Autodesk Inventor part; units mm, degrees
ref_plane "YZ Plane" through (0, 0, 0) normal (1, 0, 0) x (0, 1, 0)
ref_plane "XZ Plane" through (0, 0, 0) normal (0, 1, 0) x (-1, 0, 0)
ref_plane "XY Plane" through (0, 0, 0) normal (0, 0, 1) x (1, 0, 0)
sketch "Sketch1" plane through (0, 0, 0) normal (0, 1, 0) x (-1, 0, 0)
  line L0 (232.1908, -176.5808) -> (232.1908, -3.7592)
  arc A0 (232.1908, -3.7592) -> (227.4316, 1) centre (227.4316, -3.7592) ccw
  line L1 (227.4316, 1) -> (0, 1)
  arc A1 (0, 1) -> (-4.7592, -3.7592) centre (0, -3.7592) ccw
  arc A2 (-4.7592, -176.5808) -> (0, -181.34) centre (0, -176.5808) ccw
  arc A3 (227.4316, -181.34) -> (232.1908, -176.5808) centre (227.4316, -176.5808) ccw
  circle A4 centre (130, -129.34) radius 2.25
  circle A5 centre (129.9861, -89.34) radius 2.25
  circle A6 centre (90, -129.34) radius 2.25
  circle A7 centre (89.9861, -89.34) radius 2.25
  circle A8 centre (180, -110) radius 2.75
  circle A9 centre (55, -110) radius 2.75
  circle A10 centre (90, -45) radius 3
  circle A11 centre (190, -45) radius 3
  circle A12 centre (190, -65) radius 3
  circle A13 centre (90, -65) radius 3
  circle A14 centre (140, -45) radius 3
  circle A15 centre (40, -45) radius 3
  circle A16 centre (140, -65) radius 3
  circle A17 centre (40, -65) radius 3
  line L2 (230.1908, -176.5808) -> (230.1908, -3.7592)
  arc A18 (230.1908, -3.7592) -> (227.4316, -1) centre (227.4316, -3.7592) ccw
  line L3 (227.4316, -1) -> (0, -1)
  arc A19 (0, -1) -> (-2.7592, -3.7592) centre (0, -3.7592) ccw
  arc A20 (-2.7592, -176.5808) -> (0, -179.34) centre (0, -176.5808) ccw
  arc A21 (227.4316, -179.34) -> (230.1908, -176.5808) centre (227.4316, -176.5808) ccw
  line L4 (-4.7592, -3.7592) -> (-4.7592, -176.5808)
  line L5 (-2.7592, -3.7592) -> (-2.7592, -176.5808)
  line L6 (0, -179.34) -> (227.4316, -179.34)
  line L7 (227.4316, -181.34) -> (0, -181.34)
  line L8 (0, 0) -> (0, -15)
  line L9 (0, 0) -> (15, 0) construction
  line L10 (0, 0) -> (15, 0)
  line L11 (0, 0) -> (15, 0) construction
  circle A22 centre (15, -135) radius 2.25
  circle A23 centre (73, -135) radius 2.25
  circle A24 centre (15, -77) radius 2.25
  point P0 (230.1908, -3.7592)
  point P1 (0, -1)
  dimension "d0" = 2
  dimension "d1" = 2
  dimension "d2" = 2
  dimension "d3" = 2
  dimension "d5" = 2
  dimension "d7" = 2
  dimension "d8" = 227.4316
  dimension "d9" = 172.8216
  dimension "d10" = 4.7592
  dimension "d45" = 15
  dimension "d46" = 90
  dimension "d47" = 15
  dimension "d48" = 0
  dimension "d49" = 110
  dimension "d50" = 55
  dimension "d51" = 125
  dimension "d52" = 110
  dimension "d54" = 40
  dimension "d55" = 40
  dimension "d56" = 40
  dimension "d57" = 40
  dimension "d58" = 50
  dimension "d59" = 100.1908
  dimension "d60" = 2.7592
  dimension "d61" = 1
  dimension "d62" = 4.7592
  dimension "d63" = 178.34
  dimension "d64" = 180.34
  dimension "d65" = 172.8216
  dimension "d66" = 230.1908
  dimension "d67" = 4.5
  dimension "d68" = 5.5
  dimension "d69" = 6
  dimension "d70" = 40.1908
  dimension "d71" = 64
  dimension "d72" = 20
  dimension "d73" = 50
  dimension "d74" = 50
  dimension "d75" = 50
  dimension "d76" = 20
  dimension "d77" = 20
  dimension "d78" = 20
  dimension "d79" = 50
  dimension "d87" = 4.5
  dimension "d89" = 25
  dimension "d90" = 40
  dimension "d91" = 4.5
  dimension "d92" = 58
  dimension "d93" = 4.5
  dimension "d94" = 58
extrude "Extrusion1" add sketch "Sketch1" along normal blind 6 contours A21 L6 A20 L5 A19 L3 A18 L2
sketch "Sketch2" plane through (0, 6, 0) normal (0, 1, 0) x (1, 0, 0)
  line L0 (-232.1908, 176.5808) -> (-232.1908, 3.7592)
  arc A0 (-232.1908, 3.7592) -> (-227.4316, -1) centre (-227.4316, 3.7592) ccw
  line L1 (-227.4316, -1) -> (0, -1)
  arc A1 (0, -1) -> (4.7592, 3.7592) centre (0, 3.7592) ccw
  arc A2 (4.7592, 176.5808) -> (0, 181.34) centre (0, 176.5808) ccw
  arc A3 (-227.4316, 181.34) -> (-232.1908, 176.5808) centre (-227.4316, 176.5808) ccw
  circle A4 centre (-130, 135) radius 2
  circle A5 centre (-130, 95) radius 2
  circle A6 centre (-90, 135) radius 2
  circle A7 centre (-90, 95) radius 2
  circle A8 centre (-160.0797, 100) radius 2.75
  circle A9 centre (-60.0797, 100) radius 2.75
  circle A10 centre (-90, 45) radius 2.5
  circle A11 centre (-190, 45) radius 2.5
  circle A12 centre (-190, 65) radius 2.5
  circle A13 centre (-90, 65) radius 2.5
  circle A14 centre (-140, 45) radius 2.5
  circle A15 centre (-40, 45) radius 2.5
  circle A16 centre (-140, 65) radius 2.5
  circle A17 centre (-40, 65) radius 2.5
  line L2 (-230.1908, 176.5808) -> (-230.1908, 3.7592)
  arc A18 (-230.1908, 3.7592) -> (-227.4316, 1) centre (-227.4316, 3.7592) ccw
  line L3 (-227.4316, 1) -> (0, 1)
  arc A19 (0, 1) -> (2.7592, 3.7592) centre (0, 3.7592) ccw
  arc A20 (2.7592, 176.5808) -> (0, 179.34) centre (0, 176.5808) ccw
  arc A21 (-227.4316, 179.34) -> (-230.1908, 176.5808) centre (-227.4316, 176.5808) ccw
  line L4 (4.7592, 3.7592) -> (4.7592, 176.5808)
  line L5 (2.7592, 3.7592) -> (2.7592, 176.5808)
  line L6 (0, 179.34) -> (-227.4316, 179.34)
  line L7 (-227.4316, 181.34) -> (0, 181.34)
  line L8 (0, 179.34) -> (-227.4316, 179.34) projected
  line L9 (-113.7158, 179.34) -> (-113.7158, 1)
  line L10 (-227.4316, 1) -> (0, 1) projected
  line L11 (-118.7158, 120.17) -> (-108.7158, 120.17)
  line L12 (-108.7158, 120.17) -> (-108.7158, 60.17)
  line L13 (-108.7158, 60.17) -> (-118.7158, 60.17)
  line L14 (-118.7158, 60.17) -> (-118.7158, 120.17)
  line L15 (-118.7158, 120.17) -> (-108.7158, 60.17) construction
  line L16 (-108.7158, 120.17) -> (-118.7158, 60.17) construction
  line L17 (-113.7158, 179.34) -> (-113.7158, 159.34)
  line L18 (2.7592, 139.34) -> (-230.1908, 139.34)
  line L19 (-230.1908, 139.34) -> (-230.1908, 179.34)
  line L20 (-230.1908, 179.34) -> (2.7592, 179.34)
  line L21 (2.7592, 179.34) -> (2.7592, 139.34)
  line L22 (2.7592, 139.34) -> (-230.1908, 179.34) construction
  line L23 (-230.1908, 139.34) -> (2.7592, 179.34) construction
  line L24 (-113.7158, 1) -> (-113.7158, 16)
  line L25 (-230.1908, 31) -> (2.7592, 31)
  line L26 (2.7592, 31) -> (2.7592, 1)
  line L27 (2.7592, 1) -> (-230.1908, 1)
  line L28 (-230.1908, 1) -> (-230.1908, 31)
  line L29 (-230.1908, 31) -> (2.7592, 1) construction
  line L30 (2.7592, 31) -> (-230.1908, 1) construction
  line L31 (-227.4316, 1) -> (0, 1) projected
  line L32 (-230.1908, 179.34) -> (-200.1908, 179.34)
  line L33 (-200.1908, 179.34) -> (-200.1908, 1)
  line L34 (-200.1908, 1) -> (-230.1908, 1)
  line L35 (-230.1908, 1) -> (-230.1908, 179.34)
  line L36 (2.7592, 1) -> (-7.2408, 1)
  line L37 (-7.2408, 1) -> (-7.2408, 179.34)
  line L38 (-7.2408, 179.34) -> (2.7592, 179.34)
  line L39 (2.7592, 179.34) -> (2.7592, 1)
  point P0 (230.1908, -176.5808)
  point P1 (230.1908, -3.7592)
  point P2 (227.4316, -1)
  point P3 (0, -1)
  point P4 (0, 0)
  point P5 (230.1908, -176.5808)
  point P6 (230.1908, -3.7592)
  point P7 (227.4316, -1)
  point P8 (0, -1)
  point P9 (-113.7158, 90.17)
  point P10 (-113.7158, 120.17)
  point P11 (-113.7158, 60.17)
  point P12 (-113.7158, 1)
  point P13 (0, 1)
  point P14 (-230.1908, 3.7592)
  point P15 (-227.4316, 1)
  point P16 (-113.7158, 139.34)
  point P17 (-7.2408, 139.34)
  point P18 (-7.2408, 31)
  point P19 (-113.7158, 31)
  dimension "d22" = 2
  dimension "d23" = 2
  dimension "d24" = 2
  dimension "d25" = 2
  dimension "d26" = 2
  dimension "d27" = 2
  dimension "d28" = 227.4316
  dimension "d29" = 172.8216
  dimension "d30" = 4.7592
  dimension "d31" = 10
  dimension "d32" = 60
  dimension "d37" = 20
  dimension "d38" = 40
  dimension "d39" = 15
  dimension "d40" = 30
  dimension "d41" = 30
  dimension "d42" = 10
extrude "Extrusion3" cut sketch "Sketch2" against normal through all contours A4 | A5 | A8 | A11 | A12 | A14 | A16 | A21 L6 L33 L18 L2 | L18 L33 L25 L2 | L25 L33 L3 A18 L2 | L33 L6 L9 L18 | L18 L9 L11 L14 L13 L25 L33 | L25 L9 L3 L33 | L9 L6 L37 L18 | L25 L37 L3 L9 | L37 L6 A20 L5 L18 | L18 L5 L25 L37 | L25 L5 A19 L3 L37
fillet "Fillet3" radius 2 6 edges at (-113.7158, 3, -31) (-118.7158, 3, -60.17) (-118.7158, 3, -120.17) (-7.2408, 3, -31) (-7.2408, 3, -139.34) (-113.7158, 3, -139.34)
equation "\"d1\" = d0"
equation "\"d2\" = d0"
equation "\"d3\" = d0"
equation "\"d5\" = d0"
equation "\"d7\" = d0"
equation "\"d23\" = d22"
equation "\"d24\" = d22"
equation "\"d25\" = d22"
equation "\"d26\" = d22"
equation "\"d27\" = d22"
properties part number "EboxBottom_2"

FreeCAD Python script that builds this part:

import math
import FreeCAD as App
import Part
import Sketcher
from FreeCAD import Vector
Q = App.Units.Quantity


def edges_at(feature, points):
    """Names of the edges that pass closest to the given points."""
    edges = feature.Shape.Edges
    near = lambda p: min(range(len(edges)), key=lambda i: edges[i].distToShape(Part.Vertex(*p))[0])
    return sorted({f"Edge{near(p) + 1}" for p in points})


def add_polygon(sketch, points):
    """Adds a closed chain of lines whose ends are joined by coincident constraints."""
    first, n = sketch.GeometryCount, len(points)
    for a, b in zip(points, points[1:] + points[:1]):
        sketch.addGeometry(Part.LineSegment(App.Vector(*a, 0), App.Vector(*b, 0)), False)
    for i in range(n):
        sketch.addConstraint(Sketcher.Constraint("Coincident", first + i, 2, first + (i + 1) % n, 1))

doc = App.newDocument("Part")
body = doc.addObject("PartDesign::Body", "Body")

# Sketch on XZ plane
sketch1 = doc.addObject("Sketcher::SketchObject", "Sketch")
body.addObject(sketch1)
sketch1.AttachmentSupport = (doc.XZ_Plane, [""])
sketch1.MapMode = "FlatFace"
sketch1.addGeometry([
    Part.ArcOfCircle(Part.Circle(Vector(-227.4316, -176.5808, 0), Vector(0, 0, 1), 2.7592), math.radians(180), math.radians(270)),  # 0
    Part.LineSegment(Vector(-230.1908, -176.5808, 0), Vector(-230.1908, -3.7592, 0)),  # 1
    Part.ArcOfCircle(Part.Circle(Vector(-227.4316, -3.7592, 0), Vector(0, 0, 1), 2.7592), math.radians(90), math.radians(180)),  # 2
    Part.LineSegment(Vector(-227.4316, -1, 0), Vector(0, -1, 0)),  # 3
    Part.ArcOfCircle(Part.Circle(Vector(0, -3.7592, 0), Vector(0, 0, 1), 2.7592), math.radians(0), math.radians(90)),  # 4
    Part.LineSegment(Vector(2.7592, -3.7592, 0), Vector(2.7592, -176.5808, 0)),  # 5
    Part.ArcOfCircle(Part.Circle(Vector(0, -176.5808, 0), Vector(0, 0, 1), 2.7592), math.radians(-90), math.radians(0)),  # 6
    Part.LineSegment(Vector(0, -179.34, 0), Vector(-227.4316, -179.34, 0)),  # 7
    Part.Circle(Vector(-15, -135, 0), Vector(0, 0, 1), 2.25),  # 8
    Part.Circle(Vector(-73, -135, 0), Vector(0, 0, 1), 2.25),  # 9
    Part.Circle(Vector(-90, -129.34, 0), Vector(0, 0, 1), 2.25),  # 10
    Part.Circle(Vector(-55, -110, 0), Vector(0, 0, 1), 2.75),  # 11
    Part.Circle(Vector(-130, -129.34, 0), Vector(0, 0, 1), 2.25),  # 12
    Part.Circle(Vector(-180, -110, 0), Vector(0, 0, 1), 2.75),  # 13
    Part.Circle(Vector(-15, -77, 0), Vector(0, 0, 1), 2.25),  # 14
    Part.Circle(Vector(-40, -65, 0), Vector(0, 0, 1), 3),  # 15
    Part.Circle(Vector(-40, -45, 0), Vector(0, 0, 1), 3),  # 16
    Part.Circle(Vector(-89.9861, -89.34, 0), Vector(0, 0, 1), 2.25),  # 17
    Part.Circle(Vector(-90, -65, 0), Vector(0, 0, 1), 3),  # 18
    Part.Circle(Vector(-90, -45, 0), Vector(0, 0, 1), 3),  # 19
    Part.Circle(Vector(-129.9861, -89.34, 0), Vector(0, 0, 1), 2.25),  # 20
    Part.Circle(Vector(-140, -65, 0), Vector(0, 0, 1), 3),  # 21
    Part.Circle(Vector(-140, -45, 0), Vector(0, 0, 1), 3),  # 22
    Part.Circle(Vector(-190, -65, 0), Vector(0, 0, 1), 3),  # 23
    Part.Circle(Vector(-190, -45, 0), Vector(0, 0, 1), 3),  # 24
], False)
sketch1.addConstraint([
    Sketcher.Constraint("Tangent", 0, 1, 1, 1),
    Sketcher.Constraint("Tangent", 1, 2, 2, 2),
    Sketcher.Constraint("Tangent", 2, 1, 3, 1),
    Sketcher.Constraint("Tangent", 3, 2, 4, 2),
    Sketcher.Constraint("Tangent", 4, 1, 5, 1),
    Sketcher.Constraint("Tangent", 5, 2, 6, 2),
    Sketcher.Constraint("Tangent", 6, 1, 7, 1),
    Sketcher.Constraint("Tangent", 7, 2, 0, 2),
    Sketcher.Constraint("Vertical", 1),
    Sketcher.Constraint("Horizontal", 3),
    Sketcher.Constraint("Vertical", 5),
    Sketcher.Constraint("Horizontal", 7),
    Sketcher.Constraint("Equal", 0, 2),
    Sketcher.Constraint("Equal", 2, 4),
    Sketcher.Constraint("Equal", 4, 6),
    Sketcher.Constraint("Equal", 8, 9),
    Sketcher.Constraint("Equal", 9, 10),
    Sketcher.Constraint("Equal", 10, 12),
    Sketcher.Constraint("Equal", 11, 13),
    Sketcher.Constraint("Equal", 12, 14),
    Sketcher.Constraint("Equal", 15, 16),
    Sketcher.Constraint("Equal", 14, 17),
    Sketcher.Constraint("Equal", 16, 18),
    Sketcher.Constraint("Equal", 18, 19),
    Sketcher.Constraint("Equal", 17, 20),
    Sketcher.Constraint("Equal", 19, 21),
    Sketcher.Constraint("Equal", 21, 22),
    Sketcher.Constraint("Equal", 22, 23),
    Sketcher.Constraint("Equal", 23, 24),
    Sketcher.Constraint("PointOnObject", 4, 3, -2),
    Sketcher.Constraint("Horizontal", 8, 3, 9, 3),
    Sketcher.Constraint("Horizontal", 10, 3, 12, 3),
    Sketcher.Constraint("Horizontal", 11, 3, 13, 3),
    Sketcher.Constraint("Horizontal", 15, 3, 18, 3),
    Sketcher.Constraint("Horizontal", 16, 3, 19, 3),
    Sketcher.Constraint("Horizontal", 17, 3, 20, 3),
    Sketcher.Constraint("Horizontal", 18, 3, 21, 3),
    Sketcher.Constraint("Horizontal", 19, 3, 22, 3),
    Sketcher.Constraint("Horizontal", 21, 3, 23, 3),
    Sketcher.Constraint("Horizontal", 22, 3, 24, 3),
    Sketcher.Constraint("Vertical", 8, 3, 14, 3),
    Sketcher.Constraint("Vertical", 15, 3, 16, 3),
    Sketcher.Constraint("Vertical", 10, 3, 18, 3),
    Sketcher.Constraint("Vertical", 18, 3, 19, 3),
    Sketcher.Constraint("Vertical", 21, 3, 22, 3),
    Sketcher.Constraint("Vertical", 23, 3, 24, 3),
    Sketcher.Constraint("Diameter", 15, Q("6 mm")),
    Sketcher.Constraint("Diameter", 8, Q("4.5 mm")),
    Sketcher.Constraint("Diameter", 11, Q("5.5 mm")),
    Sketcher.Constraint("DistanceX", 8, 3, -1, 1, Q("15 mm")),
    Sketcher.Constraint("DistanceX", 10, 3, -1, 1, Q("90 mm")),
    Sketcher.Constraint("DistanceX", 11, 3, -1, 1, Q("55 mm")),
    Sketcher.Constraint("DistanceY", 11, 3, -1, 1, Q("110 mm")),
    Sketcher.Constraint("DistanceX", 15, 3, -1, 1, Q("40 mm")),
    Sketcher.Constraint("DistanceY", 2, 1, -1, 1, Q("1 mm")),
    Sketcher.Constraint("DistanceX", 9, 3, 8, 3, Q("58 mm")),
    Sketcher.Constraint("DistanceY", 9, 3, 11, 3, Q("25 mm")),
    Sketcher.Constraint("DistanceX", 12, 3, 10, 3, Q("40 mm")),
    Sketcher.Constraint("DistanceX", 13, 3, 12, 3, Q("50 mm")),
    Sketcher.Constraint("DistanceY", 8, 3, 14, 3, Q("58 mm")),
    Sketcher.Constraint("DistanceY", 15, 3, 16, 3, Q("20 mm")),
    Sketcher.Constraint("DistanceY", 8, 3, 16, 3, Q("90 mm")),
    Sketcher.Constraint("DistanceY", 10, 3, 17, 3, Q("40 mm")),
    Sketcher.Constraint("DistanceX", 20, 3, 17, 3, Q("40 mm")),
    Sketcher.Constraint("DistanceX", 21, 3, 18, 3, Q("50 mm")),
    Sketcher.Constraint("DistanceX", 23, 3, 21, 3, Q("50 mm")),
    Sketcher.Constraint("DistanceY", 7, 2, 12, 3, Q("50 mm")),
    Sketcher.Constraint("Radius", 0, Q("2.7592 mm")),
    Sketcher.Constraint("DistanceX", 3, 1, 3, 2, Q("227.4316 mm")),
    Sketcher.Constraint("DistanceY", 1, 1, 1, 2, Q("172.8216 mm")),
    Sketcher.Constraint("DistanceX", 17, 3, -1, 1, Q("89.986 mm")),
])
pad1 = doc.addObject("PartDesign::Pad", "Pad")
body.addObject(pad1)
pad1.Profile = sketch1
pad1.Length = 6
pad1.Reversed = True

# Sketch on XZ plane
sketch2 = doc.addObject("Sketcher::SketchObject", "Sketch001")
body.addObject(sketch2)
sketch2.AttachmentSupport = (doc.XZ_Plane, [""])
sketch2.MapMode = "FlatFace"
sketch2.AttachmentOffset = App.Placement(Vector(0, 0, -6), App.Rotation())
sketch2.addGeometry(Part.ArcOfCircle(Part.Circle(Vector(-227.4316, -176.5808, 0), Vector(0, 0, 1), 2.7592), math.radians(180), math.radians(270)), False)  # 0
sketch2.addGeometry(Part.LineSegment(Vector(-230.1908, -176.5808, 0), Vector(-230.1908, -3.7592, 0)), False)  # 1
sketch2.addGeometry(Part.ArcOfCircle(Part.Circle(Vector(-227.4316, -3.7592, 0), Vector(0, 0, 1), 2.7592), math.radians(90), math.radians(180)), False)  # 2
sketch2.addGeometry(Part.LineSegment(Vector(-227.4316, -1, 0), Vector(0, -1, 0)), False)  # 3
sketch2.addGeometry(Part.ArcOfCircle(Part.Circle(Vector(0, -3.7592, 0), Vector(0, 0, 1), 2.7592), math.radians(0), math.radians(90)), False)  # 4
sketch2.addGeometry(Part.LineSegment(Vector(2.7592, -3.7592, 0), Vector(2.7592, -176.5808, 0)), False)  # 5
sketch2.addGeometry(Part.ArcOfCircle(Part.Circle(Vector(0, -176.5808, 0), Vector(0, 0, 1), 2.7592), math.radians(-90), math.radians(0)), False)  # 6
sketch2.addGeometry(Part.LineSegment(Vector(0, -179.34, 0), Vector(-227.4316, -179.34, 0)), False)  # 7
add_polygon(sketch2, [(-113.7158, -120.17), (-113.7158, -139.34), (-7.2408, -139.34), (-7.2408, -31), (-113.7158, -31), (-113.7158, -60.17), (-118.7158, -60.17), (-118.7158, -120.17)])  # lines 8-15
sketch2.addConstraint([
    Sketcher.Constraint("Tangent", 0, 1, 1, 1),
    Sketcher.Constraint("Tangent", 1, 2, 2, 2),
    Sketcher.Constraint("Tangent", 2, 1, 3, 1),
    Sketcher.Constraint("Tangent", 3, 2, 4, 2),
    Sketcher.Constraint("Tangent", 4, 1, 5, 1),
    Sketcher.Constraint("Tangent", 5, 2, 6, 2),
    Sketcher.Constraint("Tangent", 6, 1, 7, 1),
    Sketcher.Constraint("Tangent", 7, 2, 0, 2),
    Sketcher.Constraint("Vertical", 1),
    Sketcher.Constraint("Horizontal", 3),
    Sketcher.Constraint("Vertical", 5),
    Sketcher.Constraint("Horizontal", 7),
    Sketcher.Constraint("Vertical", 8),
    Sketcher.Constraint("Horizontal", 9),
    Sketcher.Constraint("Vertical", 10),
    Sketcher.Constraint("Horizontal", 11),
    Sketcher.Constraint("Vertical", 12),
    Sketcher.Constraint("Horizontal", 13),
    Sketcher.Constraint("Vertical", 14),
    Sketcher.Constraint("Horizontal", 15),
    Sketcher.Constraint("Equal", 0, 2),
    Sketcher.Constraint("Equal", 2, 4),
    Sketcher.Constraint("Equal", 4, 6),
    Sketcher.Constraint("PointOnObject", 4, 3, -2),
    Sketcher.Constraint("Vertical", 8, 2, 11, 2),
    Sketcher.Constraint("DistanceY", 14, 2, 14, 1, Q("60 mm")),
    Sketcher.Constraint("DistanceY", 6, 1, 8, 2, Q("40 mm")),
    Sketcher.Constraint("DistanceX", 9, 2, 5, 2, Q("10 mm")),
    Sketcher.Constraint("DistanceY", 10, 2, 3, 2, Q("30 mm")),
    Sketcher.Constraint("DistanceX", 13, 2, 13, 1, Q("5 mm")),
    Sketcher.Constraint("DistanceX", 3, 1, 3, 2, Q("227.4316 mm")),
    Sketcher.Constraint("DistanceY", 1, 1, 1, 2, Q("172.8216 mm")),
    Sketcher.Constraint("DistanceY", 2, 1, -1, 1, Q("1 mm")),
    Sketcher.Constraint("DistanceY", 8, 2, 8, 1, Q("19.17 mm")),
    Sketcher.Constraint("DistanceY", 10, 1, 10, 2, Q("108.34 mm")),
    Sketcher.Constraint("DistanceX", 9, 1, 9, 2, Q("106.475 mm")),
])
pocket1 = doc.addObject("PartDesign::Pocket", "Pocket")
body.addObject(pocket1)
pocket1.Profile = sketch2
pocket1.Type = "ThroughAll"
pocket1.Reversed = True
doc.recompute()

fillet = doc.addObject("PartDesign::Fillet", "Fillet")
body.addObject(fillet)
fillet.Base = (pocket1, edges_at(pocket1, [
    (-113.716, 3, -31),
    (-118.716, 3, -60.17),
    (-118.716, 3, -120.17),
    (-7.241, 3, -31),
    (-7.241, 3, -139.34),
    (-113.716, 3, -139.34),
]))
fillet.Radius = 2

doc.recompute()
